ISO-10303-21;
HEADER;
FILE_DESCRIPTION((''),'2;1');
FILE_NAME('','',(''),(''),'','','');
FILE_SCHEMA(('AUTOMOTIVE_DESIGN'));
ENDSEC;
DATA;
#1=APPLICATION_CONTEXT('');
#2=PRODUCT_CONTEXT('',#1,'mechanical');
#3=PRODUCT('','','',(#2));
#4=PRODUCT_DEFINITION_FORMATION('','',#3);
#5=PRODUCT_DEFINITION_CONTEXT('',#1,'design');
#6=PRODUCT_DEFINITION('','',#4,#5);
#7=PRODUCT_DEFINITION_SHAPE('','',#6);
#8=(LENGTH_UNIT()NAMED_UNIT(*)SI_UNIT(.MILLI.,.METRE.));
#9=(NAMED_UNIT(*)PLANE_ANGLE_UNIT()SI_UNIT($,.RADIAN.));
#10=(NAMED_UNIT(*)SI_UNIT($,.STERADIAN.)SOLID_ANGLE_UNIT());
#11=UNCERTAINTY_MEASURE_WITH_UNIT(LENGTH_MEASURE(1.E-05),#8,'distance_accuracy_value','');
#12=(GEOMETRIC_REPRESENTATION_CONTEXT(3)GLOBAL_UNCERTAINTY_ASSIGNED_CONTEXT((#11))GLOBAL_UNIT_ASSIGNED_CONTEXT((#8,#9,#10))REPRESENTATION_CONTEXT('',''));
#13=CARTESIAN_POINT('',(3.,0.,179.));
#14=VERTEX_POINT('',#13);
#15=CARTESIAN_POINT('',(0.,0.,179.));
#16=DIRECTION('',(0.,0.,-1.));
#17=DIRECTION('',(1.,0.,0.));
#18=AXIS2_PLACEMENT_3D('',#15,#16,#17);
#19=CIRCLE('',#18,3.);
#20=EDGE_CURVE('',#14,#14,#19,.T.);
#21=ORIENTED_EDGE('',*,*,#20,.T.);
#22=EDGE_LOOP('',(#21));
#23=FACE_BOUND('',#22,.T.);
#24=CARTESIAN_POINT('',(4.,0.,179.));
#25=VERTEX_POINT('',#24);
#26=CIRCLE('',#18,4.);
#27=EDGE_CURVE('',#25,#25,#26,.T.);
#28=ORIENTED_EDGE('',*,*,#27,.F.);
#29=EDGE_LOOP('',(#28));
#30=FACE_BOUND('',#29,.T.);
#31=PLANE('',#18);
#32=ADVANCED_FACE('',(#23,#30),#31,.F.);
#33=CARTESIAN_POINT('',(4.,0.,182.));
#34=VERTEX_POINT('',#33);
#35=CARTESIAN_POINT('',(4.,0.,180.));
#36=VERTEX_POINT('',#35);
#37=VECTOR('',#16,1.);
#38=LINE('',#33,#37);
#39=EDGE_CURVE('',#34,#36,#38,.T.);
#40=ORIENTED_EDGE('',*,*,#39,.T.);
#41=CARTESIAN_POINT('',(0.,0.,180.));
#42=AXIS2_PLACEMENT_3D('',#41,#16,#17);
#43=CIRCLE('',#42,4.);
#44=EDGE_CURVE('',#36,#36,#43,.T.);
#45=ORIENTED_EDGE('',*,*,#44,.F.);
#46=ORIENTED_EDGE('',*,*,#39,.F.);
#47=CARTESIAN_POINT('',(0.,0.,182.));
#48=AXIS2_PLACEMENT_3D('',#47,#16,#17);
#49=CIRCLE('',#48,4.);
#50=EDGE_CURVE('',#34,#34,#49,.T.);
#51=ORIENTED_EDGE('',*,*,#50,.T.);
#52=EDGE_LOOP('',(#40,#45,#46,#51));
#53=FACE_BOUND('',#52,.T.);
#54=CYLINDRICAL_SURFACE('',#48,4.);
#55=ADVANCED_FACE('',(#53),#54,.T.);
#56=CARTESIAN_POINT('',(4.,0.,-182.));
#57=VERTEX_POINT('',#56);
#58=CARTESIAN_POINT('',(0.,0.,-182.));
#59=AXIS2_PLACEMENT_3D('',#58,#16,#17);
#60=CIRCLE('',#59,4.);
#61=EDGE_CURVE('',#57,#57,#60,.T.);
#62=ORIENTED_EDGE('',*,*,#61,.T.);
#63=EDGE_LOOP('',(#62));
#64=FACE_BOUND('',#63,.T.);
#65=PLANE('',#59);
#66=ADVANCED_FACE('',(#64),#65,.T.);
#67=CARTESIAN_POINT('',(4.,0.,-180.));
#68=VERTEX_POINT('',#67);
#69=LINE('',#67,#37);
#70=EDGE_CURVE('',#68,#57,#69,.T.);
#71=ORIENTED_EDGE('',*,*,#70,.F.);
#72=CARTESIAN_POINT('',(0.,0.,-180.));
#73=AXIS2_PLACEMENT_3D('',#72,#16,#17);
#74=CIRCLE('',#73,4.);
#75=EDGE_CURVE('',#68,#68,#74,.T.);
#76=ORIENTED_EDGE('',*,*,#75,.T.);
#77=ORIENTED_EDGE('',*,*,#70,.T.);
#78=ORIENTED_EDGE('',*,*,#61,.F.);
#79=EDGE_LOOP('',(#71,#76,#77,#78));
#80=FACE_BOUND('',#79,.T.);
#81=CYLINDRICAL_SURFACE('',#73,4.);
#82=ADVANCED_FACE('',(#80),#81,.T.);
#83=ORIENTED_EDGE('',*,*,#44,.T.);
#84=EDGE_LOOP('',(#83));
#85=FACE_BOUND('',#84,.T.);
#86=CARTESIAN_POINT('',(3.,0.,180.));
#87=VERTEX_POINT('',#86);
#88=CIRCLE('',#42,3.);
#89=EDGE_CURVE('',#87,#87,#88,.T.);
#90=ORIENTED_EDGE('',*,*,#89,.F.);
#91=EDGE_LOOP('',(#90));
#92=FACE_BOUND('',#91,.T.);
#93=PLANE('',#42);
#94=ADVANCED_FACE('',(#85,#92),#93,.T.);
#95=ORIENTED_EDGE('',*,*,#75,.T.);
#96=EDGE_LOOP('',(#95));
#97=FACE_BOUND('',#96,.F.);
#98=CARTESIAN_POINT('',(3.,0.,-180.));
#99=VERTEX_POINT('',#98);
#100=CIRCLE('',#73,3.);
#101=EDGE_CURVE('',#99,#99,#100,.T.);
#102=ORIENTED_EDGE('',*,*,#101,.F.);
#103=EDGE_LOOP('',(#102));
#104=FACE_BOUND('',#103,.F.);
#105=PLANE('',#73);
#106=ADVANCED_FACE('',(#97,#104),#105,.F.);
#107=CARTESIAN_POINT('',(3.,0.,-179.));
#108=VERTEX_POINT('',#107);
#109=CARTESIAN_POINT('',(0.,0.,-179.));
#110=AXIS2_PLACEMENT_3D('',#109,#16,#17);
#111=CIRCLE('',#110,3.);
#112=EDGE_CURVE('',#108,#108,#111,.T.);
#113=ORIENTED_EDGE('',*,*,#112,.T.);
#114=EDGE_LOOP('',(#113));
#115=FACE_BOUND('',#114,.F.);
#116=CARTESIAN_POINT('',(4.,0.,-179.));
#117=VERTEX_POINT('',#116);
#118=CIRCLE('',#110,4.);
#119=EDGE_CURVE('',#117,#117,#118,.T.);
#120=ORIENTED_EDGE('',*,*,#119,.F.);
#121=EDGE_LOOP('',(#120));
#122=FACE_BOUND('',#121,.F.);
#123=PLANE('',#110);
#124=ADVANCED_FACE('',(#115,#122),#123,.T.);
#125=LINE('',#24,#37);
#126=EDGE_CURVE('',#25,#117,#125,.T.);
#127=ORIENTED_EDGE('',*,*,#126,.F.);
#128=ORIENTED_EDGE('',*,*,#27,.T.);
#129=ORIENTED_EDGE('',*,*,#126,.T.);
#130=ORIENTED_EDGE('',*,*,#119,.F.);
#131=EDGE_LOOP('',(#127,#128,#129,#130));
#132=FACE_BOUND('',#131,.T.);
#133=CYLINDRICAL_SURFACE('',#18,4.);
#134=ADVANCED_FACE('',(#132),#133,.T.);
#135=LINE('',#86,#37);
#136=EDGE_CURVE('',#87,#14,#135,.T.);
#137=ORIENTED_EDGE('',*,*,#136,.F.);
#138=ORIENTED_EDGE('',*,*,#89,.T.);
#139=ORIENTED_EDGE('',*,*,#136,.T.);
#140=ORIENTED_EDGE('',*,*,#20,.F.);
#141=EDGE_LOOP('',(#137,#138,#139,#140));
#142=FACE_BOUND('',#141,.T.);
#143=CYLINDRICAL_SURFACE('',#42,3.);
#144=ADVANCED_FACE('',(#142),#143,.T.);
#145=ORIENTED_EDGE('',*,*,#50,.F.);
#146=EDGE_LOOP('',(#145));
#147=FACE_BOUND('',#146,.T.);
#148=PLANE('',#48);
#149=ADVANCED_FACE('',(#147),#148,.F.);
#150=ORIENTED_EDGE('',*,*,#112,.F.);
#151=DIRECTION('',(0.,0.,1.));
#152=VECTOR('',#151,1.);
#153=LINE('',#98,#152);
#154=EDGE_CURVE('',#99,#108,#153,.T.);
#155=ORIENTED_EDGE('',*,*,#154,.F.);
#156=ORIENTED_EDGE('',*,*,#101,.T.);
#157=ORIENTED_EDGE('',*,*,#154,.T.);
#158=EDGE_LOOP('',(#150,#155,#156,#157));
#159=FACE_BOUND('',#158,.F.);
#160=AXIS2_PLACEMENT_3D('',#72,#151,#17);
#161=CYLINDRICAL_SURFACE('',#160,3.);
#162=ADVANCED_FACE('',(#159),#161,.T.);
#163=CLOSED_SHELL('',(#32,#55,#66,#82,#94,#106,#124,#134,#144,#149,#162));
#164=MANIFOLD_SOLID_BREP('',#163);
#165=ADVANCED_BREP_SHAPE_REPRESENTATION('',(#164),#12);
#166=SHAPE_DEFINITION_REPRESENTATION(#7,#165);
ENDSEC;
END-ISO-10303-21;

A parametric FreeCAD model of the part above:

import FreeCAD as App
import Part
import Sketcher

doc = App.newDocument("Part")
body = doc.addObject("PartDesign::Body", "Body")

# Sketch on XZ plane
sketch1 = body.newObject("Sketcher::SketchObject", "Sketch")
sketch1.AttachmentSupport = (doc.getObject("XZ_Plane"), [""])
sketch1.MapMode = "FlatFace"
sketch1.addGeometry([
    Part.LineSegment(App.Vector(4, 182, 0), App.Vector(0, 182, 0)),  # 0
    Part.LineSegment(App.Vector(0, 182, 0), App.Vector(0, -182, 0)),  # 1
    Part.LineSegment(App.Vector(0, -182, 0), App.Vector(4, -182, 0)),  # 2
    Part.LineSegment(App.Vector(4, -182, 0), App.Vector(4, -180, 0)),  # 3
    Part.LineSegment(App.Vector(4, -180, 0), App.Vector(3, -180, 0)),  # 4
    Part.LineSegment(App.Vector(3, -180, 0), App.Vector(3, -179, 0)),  # 5
    Part.LineSegment(App.Vector(3, -179, 0), App.Vector(4, -179, 0)),  # 6
    Part.LineSegment(App.Vector(4, -179, 0), App.Vector(4, 179, 0)),  # 7
    Part.LineSegment(App.Vector(4, 179, 0), App.Vector(3, 179, 0)),  # 8
    Part.LineSegment(App.Vector(3, 179, 0), App.Vector(3, 180, 0)),  # 9
    Part.LineSegment(App.Vector(3, 180, 0), App.Vector(4, 180, 0)),  # 10
    Part.LineSegment(App.Vector(4, 180, 0), App.Vector(4, 182, 0)),  # 11
], False)
sketch1.addConstraint([
    Sketcher.Constraint("Coincident", 0, 2, 1, 1),
    Sketcher.Constraint("Coincident", 1, 2, 2, 1),
    Sketcher.Constraint("Coincident", 2, 2, 3, 1),
    Sketcher.Constraint("Coincident", 3, 2, 4, 1),
    Sketcher.Constraint("Coincident", 4, 2, 5, 1),
    Sketcher.Constraint("Coincident", 5, 2, 6, 1),
    Sketcher.Constraint("Coincident", 6, 2, 7, 1),
    Sketcher.Constraint("Coincident", 7, 2, 8, 1),
    Sketcher.Constraint("Coincident", 8, 2, 9, 1),
    Sketcher.Constraint("Coincident", 9, 2, 10, 1),
    Sketcher.Constraint("Coincident", 10, 2, 11, 1),
    Sketcher.Constraint("Coincident", 11, 2, 0, 1),
    Sketcher.Constraint("Horizontal", 0),
    Sketcher.Constraint("Vertical", 1),
    Sketcher.Constraint("Horizontal", 2),
    Sketcher.Constraint("Vertical", 3),
    Sketcher.Constraint("Horizontal", 4),
    Sketcher.Constraint("Vertical", 5),
    Sketcher.Constraint("Horizontal", 6),
    Sketcher.Constraint("Vertical", 7),
    Sketcher.Constraint("Horizontal", 8),
    Sketcher.Constraint("Vertical", 9),
    Sketcher.Constraint("Horizontal", 10),
    Sketcher.Constraint("Vertical", 11),
    Sketcher.Constraint("Symmetric", 0, 2, 1, 2, -1, 1),
    Sketcher.Constraint("Symmetric", 5, 2, 8, 2, -1),
    Sketcher.Constraint("Symmetric", 3, 2, 10, 2, -1),
    Sketcher.Constraint("Vertical", 3, 2, 6, 2),
    Sketcher.Constraint("Equal", 10, 5),
    Sketcher.Constraint("DistanceX", 0, 2, 0, 1, 4.0),
    Sketcher.Constraint("DistanceX", 4, 2, 4, 1, 1.0),
    Sketcher.Constraint("DistanceY", 1, 2, 1, 1, 364.0),
    Sketcher.Constraint("DistanceY", 3, 1, 3, 2, 2.0),
])
revolution = body.newObject("PartDesign::Revolution", "Revolution")
revolution.Profile = sketch1
revolution.ReferenceAxis = (sketch1, ["V_Axis"])
revolution.Angle = 360

doc.recompute()
